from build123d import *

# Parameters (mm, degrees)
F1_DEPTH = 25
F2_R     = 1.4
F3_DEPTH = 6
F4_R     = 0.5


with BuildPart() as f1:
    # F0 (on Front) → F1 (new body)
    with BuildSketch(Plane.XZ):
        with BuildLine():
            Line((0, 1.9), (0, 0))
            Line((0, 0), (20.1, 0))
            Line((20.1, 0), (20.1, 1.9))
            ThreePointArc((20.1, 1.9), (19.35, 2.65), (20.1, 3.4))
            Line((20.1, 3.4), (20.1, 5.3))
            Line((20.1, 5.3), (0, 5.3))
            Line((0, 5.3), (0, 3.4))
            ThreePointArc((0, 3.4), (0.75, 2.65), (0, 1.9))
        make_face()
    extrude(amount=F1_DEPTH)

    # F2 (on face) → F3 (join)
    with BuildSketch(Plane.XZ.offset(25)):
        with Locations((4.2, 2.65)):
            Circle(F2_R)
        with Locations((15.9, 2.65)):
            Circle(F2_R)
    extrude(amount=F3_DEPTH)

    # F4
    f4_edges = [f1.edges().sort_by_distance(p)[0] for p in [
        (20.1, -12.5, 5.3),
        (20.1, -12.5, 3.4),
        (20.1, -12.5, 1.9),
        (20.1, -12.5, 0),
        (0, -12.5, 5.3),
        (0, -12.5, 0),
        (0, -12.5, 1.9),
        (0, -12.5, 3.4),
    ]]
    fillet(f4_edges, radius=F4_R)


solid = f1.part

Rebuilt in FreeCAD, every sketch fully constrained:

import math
import FreeCAD as App
import Part
import Sketcher
from FreeCAD import Vector


def edges_at(feature, points):
    """Names of the edges that pass closest to the given points."""
    edges = feature.Shape.Edges
    near = lambda p: min(range(len(edges)), key=lambda i: edges[i].distToShape(Part.Vertex(*p))[0])
    return sorted({f"Edge{near(p) + 1}" for p in points})

doc = App.newDocument("Part")
body = doc.addObject("PartDesign::Body", "Body")

# Sketch on XZ plane
sketch1 = body.newObject("Sketcher::SketchObject", "Sketch")
sketch1.AttachmentSupport = (doc.getObject("XZ_Plane"), [""])
sketch1.MapMode = "FlatFace"
sketch1.addGeometry(Part.LineSegment(Vector(0, 1.9, 0), Vector(0, 0, 0)), False)
sketch1.addGeometry(Part.LineSegment(Vector(0, 0, 0), Vector(20.1, 0, 0)), False)
sketch1.addGeometry(Part.LineSegment(Vector(20.1, 0, 0), Vector(20.1, 1.9, 0)), False)
sketch1.addGeometry(Part.ArcOfCircle(Part.Circle(Vector(20.1, 2.6, 0), Vector(0, 0, 1), 0.8), math.radians(90), math.radians(270)), False)
sketch1.addGeometry(Part.LineSegment(Vector(20.1, 3.4, 0), Vector(20.1, 5.3, 0)), False)
sketch1.addGeometry(Part.LineSegment(Vector(20.1, 5.3, 0), Vector(0, 5.3, 0)), False)
sketch1.addGeometry(Part.LineSegment(Vector(0, 5.3, 0), Vector(0, 3.4, 0)), False)
sketch1.addGeometry(Part.ArcOfCircle(Part.Circle(Vector(0, 2.6, 0), Vector(0, 0, 1), 0.8), math.radians(-90), math.radians(90)), False)
sketch1.addConstraint(Sketcher.Constraint("Coincident", 0, 2, 1, 1))
sketch1.addConstraint(Sketcher.Constraint("Coincident", 1, 2, 2, 1))
sketch1.addConstraint(Sketcher.Constraint("Coincident", 2, 2, 3, 2))
sketch1.addConstraint(Sketcher.Constraint("Coincident", 3, 1, 4, 1))
sketch1.addConstraint(Sketcher.Constraint("Coincident", 4, 2, 5, 1))
sketch1.addConstraint(Sketcher.Constraint("Coincident", 5, 2, 6, 1))
sketch1.addConstraint(Sketcher.Constraint("Coincident", 6, 2, 7, 2))
sketch1.addConstraint(Sketcher.Constraint("Coincident", 7, 1, 0, 1))
sketch1.addConstraint(Sketcher.Constraint("Vertical", 0))
sketch1.addConstraint(Sketcher.Constraint("Horizontal", 1))
sketch1.addConstraint(Sketcher.Constraint("Vertical", 2))
sketch1.addConstraint(Sketcher.Constraint("Vertical", 4))
sketch1.addConstraint(Sketcher.Constraint("Horizontal", 5))
sketch1.addConstraint(Sketcher.Constraint("Vertical", 6))
sketch1.addConstraint(Sketcher.Constraint("Coincident", 0, 2, -1, 1))
sketch1.addConstraint(Sketcher.Constraint("Equal", 3, 7))
sketch1.addConstraint(Sketcher.Constraint("PointOnObject", 7, 3, -2))
sketch1.addConstraint(Sketcher.Constraint("PointOnObject", 5, 2, -2))
sketch1.addConstraint(Sketcher.Constraint("Horizontal", 3, 3, 7, 3))
sketch1.addConstraint(Sketcher.Constraint("Vertical", 3, 3, 1, 2))
sketch1.addConstraint(Sketcher.Constraint("Vertical", 2, 2, 3, 1))
sketch1.addConstraint(Sketcher.Constraint("Equal", 2, 4))
sketch1.addConstraint(Sketcher.Constraint("Radius", 3, 0.75))
sketch1.addConstraint(Sketcher.Constraint("DistanceX", 1, 1, 1, 2, 20.1))
sketch1.addConstraint(Sketcher.Constraint("DistanceY", 0, 2, 0, 1, 1.9))
pad1 = body.newObject("PartDesign::Pad", "Pad")
pad1.Profile = sketch1
pad1.Length = 25

# Sketch on XZ plane
sketch2 = body.newObject("Sketcher::SketchObject", "Sketch001")
sketch2.AttachmentSupport = (doc.getObject("XZ_Plane"), [""])
sketch2.MapMode = "FlatFace"
sketch2.AttachmentOffset = App.Placement(Vector(0, 0, 25), App.Rotation())
sketch2.addGeometry(Part.Circle(Vector(4.2, 2.6, 0), Vector(0, 0, 1), 1.4), False)
sketch2.addGeometry(Part.Circle(Vector(15.9, 2.6, 0), Vector(0, 0, 1), 1.4), False)
sketch2.addConstraint(Sketcher.Constraint("Equal", 0, 1))
sketch2.addConstraint(Sketcher.Constraint("Horizontal", 0, 3, 1, 3))
sketch2.addConstraint(Sketcher.Constraint("Diameter", 0, 2.8))
sketch2.addConstraint(Sketcher.Constraint("DistanceX", -1, 1, 0, 3, 4.2))
sketch2.addConstraint(Sketcher.Constraint("DistanceX", -1, 1, 1, 3, 15.9))
sketch2.addConstraint(Sketcher.Constraint("DistanceY", -1, 1, 0, 3, 2.65))
pad2 = body.newObject("PartDesign::Pad", "Pad001")
pad2.Profile = sketch2
pad2.Length = 6
doc.recompute()

fillet = body.newObject("PartDesign::Fillet", "Fillet")
fillet.Base = (pad2, edges_at(pad2, [
    (20.1, -12.5, 5.3),
    (20.1, -12.5, 3.4),
    (20.1, -12.5, 1.9),
    (20.1, -12.5, 0),
    (0, -12.5, 5.3),
    (0, -12.5, 0),
    (0, -12.5, 1.9),
    (0, -12.5, 3.4),
]))
fillet.Radius = 0.5

doc.recompute()
